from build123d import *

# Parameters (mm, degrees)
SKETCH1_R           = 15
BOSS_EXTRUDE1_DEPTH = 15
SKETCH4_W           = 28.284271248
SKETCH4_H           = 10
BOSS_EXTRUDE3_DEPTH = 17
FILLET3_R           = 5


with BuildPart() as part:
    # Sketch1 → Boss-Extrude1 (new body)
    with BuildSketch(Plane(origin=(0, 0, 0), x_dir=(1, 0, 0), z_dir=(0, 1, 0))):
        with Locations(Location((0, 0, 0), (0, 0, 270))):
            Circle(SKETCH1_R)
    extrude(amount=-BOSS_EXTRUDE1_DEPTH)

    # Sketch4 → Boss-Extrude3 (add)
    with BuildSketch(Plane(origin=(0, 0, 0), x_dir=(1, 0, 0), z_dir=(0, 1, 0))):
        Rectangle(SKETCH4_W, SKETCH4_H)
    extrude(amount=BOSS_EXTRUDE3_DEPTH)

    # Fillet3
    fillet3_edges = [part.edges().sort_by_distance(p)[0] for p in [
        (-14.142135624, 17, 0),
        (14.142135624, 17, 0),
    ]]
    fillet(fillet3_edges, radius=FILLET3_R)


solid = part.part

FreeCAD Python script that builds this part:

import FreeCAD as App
import Part
import Sketcher
from FreeCAD import Vector
Q = App.Units.Quantity


def edges_at(feature, points):
    """Names of the edges that pass closest to the given points."""
    edges = feature.Shape.Edges
    near = lambda p: min(range(len(edges)), key=lambda i: edges[i].distToShape(Part.Vertex(*p))[0])
    return sorted({f"Edge{near(p) + 1}" for p in points})

doc = App.newDocument("Part")
body = doc.addObject("PartDesign::Body", "Body")

sketch1 = doc.addObject("Sketcher::SketchObject", "Sketch")
body.addObject(sketch1)
sketch1.AttachmentSupport = (doc.XZ_Plane, [""])
sketch1.MapMode = "FlatFace"
sketch1.addGeometry(Part.Circle(Vector(0, 0, 0), Vector(0, 0, 1), 15), False)
sketch1.addConstraint([
    Sketcher.Constraint("Coincident", 0, 3, -1, 1),
    Sketcher.Constraint("Diameter", 0, Q("30 mm")),
])
pad1 = doc.addObject("PartDesign::Pad", "Pad")
body.addObject(pad1)
pad1.Profile = sketch1
pad1.Length = 15

sketch2 = doc.addObject("Sketcher::SketchObject", "Sketch001")
body.addObject(sketch2)
sketch2.AttachmentSupport = (doc.XZ_Plane, [""])
sketch2.MapMode = "FlatFace"
sketch2.addGeometry([
    Part.LineSegment(Vector(-14.142136, -5, 0), Vector(-14.142136, 5, 0)),
    Part.LineSegment(Vector(-14.142136, 5, 0), Vector(14.142136, 5, 0)),
    Part.LineSegment(Vector(14.142136, 5, 0), Vector(14.142136, -5, 0)),
    Part.LineSegment(Vector(14.142136, -5, 0), Vector(-14.142136, -5, 0)),
], False)
sketch2.addConstraint([
    Sketcher.Constraint("Coincident", 0, 2, 1, 1),
    Sketcher.Constraint("Coincident", 1, 2, 2, 1),
    Sketcher.Constraint("Coincident", 2, 2, 3, 1),
    Sketcher.Constraint("Coincident", 3, 2, 0, 1),
    Sketcher.Constraint("Vertical", 0),
    Sketcher.Constraint("Horizontal", 1),
    Sketcher.Constraint("Vertical", 2),
    Sketcher.Constraint("Horizontal", 3),
    Sketcher.Constraint("Symmetric", 0, 2, 2, 2, -1, 1),
    Sketcher.Constraint("DistanceY", 0, 1, 0, 2, Q("10 mm")),
    Sketcher.Constraint("DistanceX", 1, 1, 1, 2, Q("28.284271 mm")),
])
pad2 = doc.addObject("PartDesign::Pad", "Pad001")
body.addObject(pad2)
pad2.Profile = sketch2
pad2.Length = 17
pad2.Reversed = True
doc.recompute()

fillet = doc.addObject("PartDesign::Fillet", "Fillet")
body.addObject(fillet)
fillet.Base = (pad2, edges_at(pad2, [(-14.142, 17, 0), (14.142, 17, 0)]))
fillet.Radius = 5

doc.recompute()
